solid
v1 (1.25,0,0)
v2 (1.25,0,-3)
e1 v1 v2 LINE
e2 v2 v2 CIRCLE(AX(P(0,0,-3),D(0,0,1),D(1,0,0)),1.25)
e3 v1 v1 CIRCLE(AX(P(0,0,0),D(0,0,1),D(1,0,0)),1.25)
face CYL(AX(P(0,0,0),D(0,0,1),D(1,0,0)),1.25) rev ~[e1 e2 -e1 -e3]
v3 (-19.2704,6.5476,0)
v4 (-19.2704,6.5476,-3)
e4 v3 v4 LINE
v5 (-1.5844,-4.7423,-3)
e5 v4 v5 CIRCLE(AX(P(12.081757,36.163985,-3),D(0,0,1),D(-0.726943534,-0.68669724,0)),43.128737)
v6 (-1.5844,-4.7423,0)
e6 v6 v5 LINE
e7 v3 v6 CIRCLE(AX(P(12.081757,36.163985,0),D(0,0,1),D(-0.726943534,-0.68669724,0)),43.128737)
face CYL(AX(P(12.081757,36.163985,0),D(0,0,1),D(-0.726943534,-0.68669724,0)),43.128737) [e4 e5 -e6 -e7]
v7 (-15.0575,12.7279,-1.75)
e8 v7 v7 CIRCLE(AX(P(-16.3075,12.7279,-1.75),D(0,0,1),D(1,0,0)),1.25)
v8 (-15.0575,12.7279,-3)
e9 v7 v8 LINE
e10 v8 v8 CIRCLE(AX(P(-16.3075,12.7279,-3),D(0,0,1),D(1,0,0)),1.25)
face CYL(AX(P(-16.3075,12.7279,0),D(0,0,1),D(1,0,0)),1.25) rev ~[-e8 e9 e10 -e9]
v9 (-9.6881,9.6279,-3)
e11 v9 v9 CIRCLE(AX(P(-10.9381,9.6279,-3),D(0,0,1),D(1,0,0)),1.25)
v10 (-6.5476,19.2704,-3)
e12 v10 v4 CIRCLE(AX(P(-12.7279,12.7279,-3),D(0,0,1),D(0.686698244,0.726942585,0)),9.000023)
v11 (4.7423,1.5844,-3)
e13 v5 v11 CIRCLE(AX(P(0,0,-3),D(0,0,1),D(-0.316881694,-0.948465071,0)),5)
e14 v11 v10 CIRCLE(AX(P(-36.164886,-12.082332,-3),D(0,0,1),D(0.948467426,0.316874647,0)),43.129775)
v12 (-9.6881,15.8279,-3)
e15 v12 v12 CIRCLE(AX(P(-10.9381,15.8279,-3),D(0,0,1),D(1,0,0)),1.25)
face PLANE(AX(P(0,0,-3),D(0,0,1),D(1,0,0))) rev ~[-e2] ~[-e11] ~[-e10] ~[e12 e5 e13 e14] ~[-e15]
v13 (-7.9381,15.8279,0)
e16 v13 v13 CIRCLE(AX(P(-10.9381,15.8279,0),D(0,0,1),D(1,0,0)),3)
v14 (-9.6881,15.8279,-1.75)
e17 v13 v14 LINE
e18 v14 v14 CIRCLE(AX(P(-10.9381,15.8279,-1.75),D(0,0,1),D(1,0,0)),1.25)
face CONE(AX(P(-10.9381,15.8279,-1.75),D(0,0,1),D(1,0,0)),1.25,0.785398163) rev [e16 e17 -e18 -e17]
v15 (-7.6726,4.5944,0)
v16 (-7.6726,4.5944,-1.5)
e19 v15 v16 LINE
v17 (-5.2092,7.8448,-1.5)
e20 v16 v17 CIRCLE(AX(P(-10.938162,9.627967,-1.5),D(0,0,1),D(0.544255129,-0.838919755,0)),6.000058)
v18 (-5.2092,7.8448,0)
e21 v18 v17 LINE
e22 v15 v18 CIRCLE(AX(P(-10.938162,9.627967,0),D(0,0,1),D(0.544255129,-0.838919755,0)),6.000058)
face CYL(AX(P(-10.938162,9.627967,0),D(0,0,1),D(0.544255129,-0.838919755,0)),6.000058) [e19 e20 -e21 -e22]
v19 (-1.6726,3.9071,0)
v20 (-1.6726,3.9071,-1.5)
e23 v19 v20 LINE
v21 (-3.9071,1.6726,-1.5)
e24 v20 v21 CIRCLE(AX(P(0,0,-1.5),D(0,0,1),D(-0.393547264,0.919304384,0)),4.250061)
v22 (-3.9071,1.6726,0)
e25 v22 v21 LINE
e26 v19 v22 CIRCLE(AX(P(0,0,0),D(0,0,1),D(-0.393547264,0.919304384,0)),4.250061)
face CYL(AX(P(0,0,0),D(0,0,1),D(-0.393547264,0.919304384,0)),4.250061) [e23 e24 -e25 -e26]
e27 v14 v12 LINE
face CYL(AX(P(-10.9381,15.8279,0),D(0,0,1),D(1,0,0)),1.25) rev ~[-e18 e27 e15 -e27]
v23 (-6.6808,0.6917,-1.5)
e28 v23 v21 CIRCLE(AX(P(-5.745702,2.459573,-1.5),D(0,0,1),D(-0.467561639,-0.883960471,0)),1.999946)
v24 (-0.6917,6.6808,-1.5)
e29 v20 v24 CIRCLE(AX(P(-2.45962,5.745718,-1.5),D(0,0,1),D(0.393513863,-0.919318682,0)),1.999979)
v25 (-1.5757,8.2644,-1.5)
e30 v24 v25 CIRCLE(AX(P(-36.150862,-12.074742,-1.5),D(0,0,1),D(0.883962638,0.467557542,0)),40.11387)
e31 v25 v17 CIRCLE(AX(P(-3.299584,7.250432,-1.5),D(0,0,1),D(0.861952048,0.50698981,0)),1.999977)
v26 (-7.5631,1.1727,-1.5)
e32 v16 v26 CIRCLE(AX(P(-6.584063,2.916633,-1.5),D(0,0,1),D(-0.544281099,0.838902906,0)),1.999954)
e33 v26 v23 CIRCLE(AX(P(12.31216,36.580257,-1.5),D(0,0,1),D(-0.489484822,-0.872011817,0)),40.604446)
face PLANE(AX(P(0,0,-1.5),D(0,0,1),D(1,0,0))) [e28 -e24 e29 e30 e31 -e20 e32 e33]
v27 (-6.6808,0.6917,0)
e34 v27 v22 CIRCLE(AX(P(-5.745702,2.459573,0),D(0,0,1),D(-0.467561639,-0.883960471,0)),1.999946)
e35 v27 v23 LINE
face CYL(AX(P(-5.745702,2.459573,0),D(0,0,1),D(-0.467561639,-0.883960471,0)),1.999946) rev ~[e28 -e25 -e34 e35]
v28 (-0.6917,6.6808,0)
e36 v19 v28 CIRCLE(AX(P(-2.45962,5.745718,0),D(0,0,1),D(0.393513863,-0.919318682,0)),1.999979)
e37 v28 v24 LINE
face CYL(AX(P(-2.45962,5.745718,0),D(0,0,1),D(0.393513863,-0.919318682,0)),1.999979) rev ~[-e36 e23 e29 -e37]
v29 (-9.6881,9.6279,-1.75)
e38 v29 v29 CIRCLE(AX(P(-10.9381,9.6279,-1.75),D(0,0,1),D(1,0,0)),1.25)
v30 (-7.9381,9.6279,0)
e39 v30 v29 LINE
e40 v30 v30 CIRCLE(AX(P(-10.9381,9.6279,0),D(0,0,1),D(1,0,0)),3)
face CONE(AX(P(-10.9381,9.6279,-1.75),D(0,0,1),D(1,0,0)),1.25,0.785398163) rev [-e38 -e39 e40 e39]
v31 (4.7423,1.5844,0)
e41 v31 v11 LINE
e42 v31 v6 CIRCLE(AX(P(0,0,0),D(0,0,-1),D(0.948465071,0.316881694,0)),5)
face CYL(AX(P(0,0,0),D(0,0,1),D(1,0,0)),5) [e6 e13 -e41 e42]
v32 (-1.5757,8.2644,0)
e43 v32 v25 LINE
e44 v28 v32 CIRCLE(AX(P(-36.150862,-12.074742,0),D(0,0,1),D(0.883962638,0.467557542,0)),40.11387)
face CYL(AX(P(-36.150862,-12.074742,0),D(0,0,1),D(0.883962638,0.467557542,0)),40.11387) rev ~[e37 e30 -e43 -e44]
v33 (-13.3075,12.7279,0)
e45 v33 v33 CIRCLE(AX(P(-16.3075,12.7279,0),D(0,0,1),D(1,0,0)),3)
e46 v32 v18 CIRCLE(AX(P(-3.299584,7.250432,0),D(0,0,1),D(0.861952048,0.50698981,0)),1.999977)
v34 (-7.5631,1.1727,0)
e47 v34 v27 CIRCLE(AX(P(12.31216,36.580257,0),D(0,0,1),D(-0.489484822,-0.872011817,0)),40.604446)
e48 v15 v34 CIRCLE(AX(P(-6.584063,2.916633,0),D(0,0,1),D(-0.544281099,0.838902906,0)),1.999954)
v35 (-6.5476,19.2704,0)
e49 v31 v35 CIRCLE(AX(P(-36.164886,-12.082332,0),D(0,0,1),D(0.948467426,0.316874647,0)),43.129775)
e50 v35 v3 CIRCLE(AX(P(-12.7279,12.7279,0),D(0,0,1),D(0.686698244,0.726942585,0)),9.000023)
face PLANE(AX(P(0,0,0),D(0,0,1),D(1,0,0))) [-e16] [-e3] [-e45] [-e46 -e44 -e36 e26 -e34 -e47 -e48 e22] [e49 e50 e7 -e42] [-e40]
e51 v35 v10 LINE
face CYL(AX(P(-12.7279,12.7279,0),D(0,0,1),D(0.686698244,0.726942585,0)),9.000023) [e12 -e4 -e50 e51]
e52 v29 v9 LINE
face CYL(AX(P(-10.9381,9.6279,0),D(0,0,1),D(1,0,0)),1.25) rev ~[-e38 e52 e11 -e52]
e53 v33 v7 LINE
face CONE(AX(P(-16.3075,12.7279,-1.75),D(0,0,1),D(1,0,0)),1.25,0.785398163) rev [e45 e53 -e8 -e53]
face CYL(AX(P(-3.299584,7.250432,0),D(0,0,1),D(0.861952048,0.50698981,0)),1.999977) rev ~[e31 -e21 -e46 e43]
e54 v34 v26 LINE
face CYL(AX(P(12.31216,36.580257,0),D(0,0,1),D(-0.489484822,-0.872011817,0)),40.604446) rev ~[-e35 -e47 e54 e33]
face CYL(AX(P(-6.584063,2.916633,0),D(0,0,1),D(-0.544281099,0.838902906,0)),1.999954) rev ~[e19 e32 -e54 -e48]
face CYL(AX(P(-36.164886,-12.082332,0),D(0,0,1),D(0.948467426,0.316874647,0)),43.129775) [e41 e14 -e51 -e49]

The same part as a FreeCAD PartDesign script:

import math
import FreeCAD as App
import Part
import Sketcher
from FreeCAD import Vector
Q = App.Units.Quantity


def edges_at(feature, points):
    """Names of the edges that pass closest to the given points."""
    edges = feature.Shape.Edges
    near = lambda p: min(range(len(edges)), key=lambda i: edges[i].distToShape(Part.Vertex(*p))[0])
    return sorted({f"Edge{near(p) + 1}" for p in points})

doc = App.newDocument("Part")
params = doc.addObject("Spreadsheet::Sheet", "Params")
for row, (alias, value) in enumerate([
    ("sketch1_radius", "9 mm"),
    ("sketch1_radius2", "5 mm"),
    ("sketch1_diameter", "2.5 mm"),
    ("pad1_length", "3 mm"),
    ("chamfer_size", "1.75 mm"),
    ("sketch2_radius", "2 mm"),
    ("sketch2_radius2", "6 mm"),
    ("sketch2_radius3", "4.25 mm"),
    ("pocket1_length", "1.5 mm"),
], start=1):
    params.set(f"A{row}", alias)
    params.set(f"B{row}", "=" + value)
    params.setAlias(f"B{row}", alias)

body = doc.addObject("PartDesign::Body", "Body")

# Sketch on XY plane
sketch1 = body.newObject("Sketcher::SketchObject", "Sketch")
sketch1.AttachmentSupport = (doc.getObject("XY_Plane"), [""])
sketch1.MapMode = "FlatFace"
sketch1.addGeometry([
    Part.ArcOfCircle(Part.Circle(Vector(-36.2, -12.1, 0), Vector(0, 0, 1), 43.1), math.radians(18), math.radians(47)),  # 0
    Part.ArcOfCircle(Part.Circle(Vector(-12.7, 12.7, 0), Vector(0, 0, 1), 9), math.radians(47), math.radians(223)),  # 1
    Part.ArcOfCircle(Part.Circle(Vector(12.1, 36.2, 0), Vector(0, 0, 1), 43.1), math.radians(-137), math.radians(-108)),  # 2
    Part.ArcOfCircle(Part.Circle(Vector(0, 0, 0), Vector(0, 0, 1), 5), math.radians(-108), math.radians(18)),  # 3
    Part.Circle(Vector(-16.3, 12.7, 0), Vector(0, 0, 1), 1.2),  # 4
    Part.Circle(Vector(-10.9, 9.6, 0), Vector(0, 0, 1), 1.2),  # 5
    Part.Circle(Vector(-10.9, 15.8, 0), Vector(0, 0, 1), 1.2),  # 6
    Part.Circle(Vector(0, 0, 0), Vector(0, 0, 1), 1.2),  # 7
], False)
sketch1.addConstraint([
    Sketcher.Constraint("Tangent", 0, 2, 1, 1),
    Sketcher.Constraint("Tangent", 1, 2, 2, 1),
    Sketcher.Constraint("Tangent", 2, 2, 3, 1),
    Sketcher.Constraint("Tangent", 3, 2, 0, 1),
    Sketcher.Constraint("Coincident", 3, 3, -1, 1),
    Sketcher.Constraint("Coincident", 7, 3, -1, 1),
    Sketcher.Constraint("Equal", 0, 2),
    Sketcher.Constraint("Equal", 4, 5),
    Sketcher.Constraint("Equal", 5, 6),
    Sketcher.Constraint("Equal", 6, 7),
    Sketcher.Constraint("Horizontal", 1, 3, 4, 3),
    Sketcher.Constraint("Vertical", 5, 3, 6, 3),
    Sketcher.Constraint("Radius", 1, Q("9 mm")),
    Sketcher.Constraint("Radius", 3, Q("5 mm")),
    Sketcher.Constraint("Diameter", 4, Q("2.5 mm")),
    Sketcher.Constraint("DistanceY", 5, 3, 6, 3, Q("6.2 mm")),
    Sketcher.Constraint("Radius", 0, Q("43.1292 mm")),
    Sketcher.Constraint("DistanceY", 5, 3, 1, 3, Q("3.1 mm")),
    Sketcher.Constraint("DistanceY", 0, 3, 1, 3, Q("24.81 mm")),
    Sketcher.Constraint("DistanceX", 1, 3, 2, 3, Q("24.81 mm")),
    Sketcher.Constraint("DistanceX", 5, 3, -1, 1, Q("10.938 mm")),
    Sketcher.Constraint("DistanceX", 0, 3, 4, 3, Q("19.857 mm")),
])
sketch1.setExpression("Constraints[12]", "Params.sketch1_radius")
sketch1.setExpression("Constraints[13]", "Params.sketch1_radius2")
sketch1.setExpression("Constraints[14]", "Params.sketch1_diameter")
pad1 = body.newObject("PartDesign::Pad", "Pad")
pad1.Profile = sketch1
pad1.setExpression("Length", "Params.pad1_length")
pad1.Reversed = True
doc.recompute()

chamfer = body.newObject("PartDesign::Chamfer", "Chamfer")
chamfer.Base = (pad1, edges_at(pad1, [(-12.188, 15.828, 0), (-17.558, 12.728, 0), (-12.188, 9.628, 0)]))
chamfer.setExpression("Size", "Params.chamfer_size")

# Sketch on XY plane
sketch2 = body.newObject("Sketcher::SketchObject", "Sketch001")
sketch2.AttachmentSupport = (doc.getObject("XY_Plane"), [""])
sketch2.MapMode = "FlatFace"
sketch2.addGeometry([
    Part.ArcOfCircle(Part.Circle(Vector(-36.2, -12.1, 0), Vector(0, 0, 1), 40.1), math.radians(27.88), math.radians(30.47)),  # 0
    Part.ArcOfCircle(Part.Circle(Vector(-3.3, 7.3, 0), Vector(0, 0, 1), 2), math.radians(30), math.radians(163)),  # 1
    Part.ArcOfCircle(Part.Circle(Vector(-10.9, 9.6, 0), Vector(0, 0, 1), 6), math.radians(-57), math.radians(-17)),  # 2
    Part.ArcOfCircle(Part.Circle(Vector(-6.6, 2.9, 0), Vector(0, 0, 1), 2), math.radians(123), math.radians(241)),  # 3
    Part.ArcOfCircle(Part.Circle(Vector(12.3, 36.6, 0), Vector(0, 0, 1), 40.6), math.radians(-119.31), math.radians(-117.89)),  # 4
    Part.ArcOfCircle(Part.Circle(Vector(-5.7, 2.5, 0), Vector(0, 0, 1), 2), math.radians(-118), math.radians(-23)),  # 5
    Part.ArcOfCircle(Part.Circle(Vector(0, 0, 0), Vector(0, 0, 1), 4.3), math.radians(113), math.radians(157)),  # 6
    Part.ArcOfCircle(Part.Circle(Vector(-2.5, 5.7, 0), Vector(0, 0, 1), 2), math.radians(-67), math.radians(28)),  # 7
], False)
sketch2.addConstraint([
    Sketcher.Constraint("Tangent", 0, 2, 1, 1),
    Sketcher.Constraint("Tangent", 1, 2, 2, 2),
    Sketcher.Constraint("Tangent", 2, 1, 3, 1),
    Sketcher.Constraint("Tangent", 3, 2, 4, 1),
    Sketcher.Constraint("Tangent", 4, 2, 5, 1),
    Sketcher.Constraint("Tangent", 5, 2, 6, 2),
    Sketcher.Constraint("Tangent", 6, 1, 7, 1),
    Sketcher.Constraint("Tangent", 7, 2, 0, 1),
    Sketcher.Constraint("Coincident", 6, 3, -1, 1),
    Sketcher.Constraint("Equal", 1, 3),
    Sketcher.Constraint("Equal", 3, 5),
    Sketcher.Constraint("Equal", 5, 7),
    Sketcher.Constraint("Radius", 1, Q("2 mm")),
    Sketcher.Constraint("Radius", 2, Q("6 mm")),
    Sketcher.Constraint("Radius", 6, Q("4.25 mm")),
    Sketcher.Constraint("Radius", 0, Q("40.1139 mm")),
    Sketcher.Constraint("Radius", 4, Q("40.6044 mm")),
    Sketcher.Constraint("DistanceY", 3, 2, 5, 2, Q("0.5 mm")),
    Sketcher.Constraint("DistanceX", 1, 3, 7, 3, Q("0.84 mm")),
    Sketcher.Constraint("DistanceX", 5, 3, 0, 2, Q("4.17 mm")),
    Sketcher.Constraint("DistanceX", 2, 3, -1, 1, Q("10.938 mm")),
    Sketcher.Constraint("DistanceY", -1, 1, 2, 3, Q("9.628 mm")),
    Sketcher.Constraint("DistanceX", 3, 3, -1, 1, Q("6.584 mm")),
])
sketch2.setExpression("Constraints[12]", "Params.sketch2_radius")
sketch2.setExpression("Constraints[13]", "Params.sketch2_radius2")
sketch2.setExpression("Constraints[14]", "Params.sketch2_radius3")
pocket1 = body.newObject("PartDesign::Pocket", "Pocket")
pocket1.Profile = sketch2
pocket1.setExpression("Length", "Params.pocket1_length")

doc.recompute()
